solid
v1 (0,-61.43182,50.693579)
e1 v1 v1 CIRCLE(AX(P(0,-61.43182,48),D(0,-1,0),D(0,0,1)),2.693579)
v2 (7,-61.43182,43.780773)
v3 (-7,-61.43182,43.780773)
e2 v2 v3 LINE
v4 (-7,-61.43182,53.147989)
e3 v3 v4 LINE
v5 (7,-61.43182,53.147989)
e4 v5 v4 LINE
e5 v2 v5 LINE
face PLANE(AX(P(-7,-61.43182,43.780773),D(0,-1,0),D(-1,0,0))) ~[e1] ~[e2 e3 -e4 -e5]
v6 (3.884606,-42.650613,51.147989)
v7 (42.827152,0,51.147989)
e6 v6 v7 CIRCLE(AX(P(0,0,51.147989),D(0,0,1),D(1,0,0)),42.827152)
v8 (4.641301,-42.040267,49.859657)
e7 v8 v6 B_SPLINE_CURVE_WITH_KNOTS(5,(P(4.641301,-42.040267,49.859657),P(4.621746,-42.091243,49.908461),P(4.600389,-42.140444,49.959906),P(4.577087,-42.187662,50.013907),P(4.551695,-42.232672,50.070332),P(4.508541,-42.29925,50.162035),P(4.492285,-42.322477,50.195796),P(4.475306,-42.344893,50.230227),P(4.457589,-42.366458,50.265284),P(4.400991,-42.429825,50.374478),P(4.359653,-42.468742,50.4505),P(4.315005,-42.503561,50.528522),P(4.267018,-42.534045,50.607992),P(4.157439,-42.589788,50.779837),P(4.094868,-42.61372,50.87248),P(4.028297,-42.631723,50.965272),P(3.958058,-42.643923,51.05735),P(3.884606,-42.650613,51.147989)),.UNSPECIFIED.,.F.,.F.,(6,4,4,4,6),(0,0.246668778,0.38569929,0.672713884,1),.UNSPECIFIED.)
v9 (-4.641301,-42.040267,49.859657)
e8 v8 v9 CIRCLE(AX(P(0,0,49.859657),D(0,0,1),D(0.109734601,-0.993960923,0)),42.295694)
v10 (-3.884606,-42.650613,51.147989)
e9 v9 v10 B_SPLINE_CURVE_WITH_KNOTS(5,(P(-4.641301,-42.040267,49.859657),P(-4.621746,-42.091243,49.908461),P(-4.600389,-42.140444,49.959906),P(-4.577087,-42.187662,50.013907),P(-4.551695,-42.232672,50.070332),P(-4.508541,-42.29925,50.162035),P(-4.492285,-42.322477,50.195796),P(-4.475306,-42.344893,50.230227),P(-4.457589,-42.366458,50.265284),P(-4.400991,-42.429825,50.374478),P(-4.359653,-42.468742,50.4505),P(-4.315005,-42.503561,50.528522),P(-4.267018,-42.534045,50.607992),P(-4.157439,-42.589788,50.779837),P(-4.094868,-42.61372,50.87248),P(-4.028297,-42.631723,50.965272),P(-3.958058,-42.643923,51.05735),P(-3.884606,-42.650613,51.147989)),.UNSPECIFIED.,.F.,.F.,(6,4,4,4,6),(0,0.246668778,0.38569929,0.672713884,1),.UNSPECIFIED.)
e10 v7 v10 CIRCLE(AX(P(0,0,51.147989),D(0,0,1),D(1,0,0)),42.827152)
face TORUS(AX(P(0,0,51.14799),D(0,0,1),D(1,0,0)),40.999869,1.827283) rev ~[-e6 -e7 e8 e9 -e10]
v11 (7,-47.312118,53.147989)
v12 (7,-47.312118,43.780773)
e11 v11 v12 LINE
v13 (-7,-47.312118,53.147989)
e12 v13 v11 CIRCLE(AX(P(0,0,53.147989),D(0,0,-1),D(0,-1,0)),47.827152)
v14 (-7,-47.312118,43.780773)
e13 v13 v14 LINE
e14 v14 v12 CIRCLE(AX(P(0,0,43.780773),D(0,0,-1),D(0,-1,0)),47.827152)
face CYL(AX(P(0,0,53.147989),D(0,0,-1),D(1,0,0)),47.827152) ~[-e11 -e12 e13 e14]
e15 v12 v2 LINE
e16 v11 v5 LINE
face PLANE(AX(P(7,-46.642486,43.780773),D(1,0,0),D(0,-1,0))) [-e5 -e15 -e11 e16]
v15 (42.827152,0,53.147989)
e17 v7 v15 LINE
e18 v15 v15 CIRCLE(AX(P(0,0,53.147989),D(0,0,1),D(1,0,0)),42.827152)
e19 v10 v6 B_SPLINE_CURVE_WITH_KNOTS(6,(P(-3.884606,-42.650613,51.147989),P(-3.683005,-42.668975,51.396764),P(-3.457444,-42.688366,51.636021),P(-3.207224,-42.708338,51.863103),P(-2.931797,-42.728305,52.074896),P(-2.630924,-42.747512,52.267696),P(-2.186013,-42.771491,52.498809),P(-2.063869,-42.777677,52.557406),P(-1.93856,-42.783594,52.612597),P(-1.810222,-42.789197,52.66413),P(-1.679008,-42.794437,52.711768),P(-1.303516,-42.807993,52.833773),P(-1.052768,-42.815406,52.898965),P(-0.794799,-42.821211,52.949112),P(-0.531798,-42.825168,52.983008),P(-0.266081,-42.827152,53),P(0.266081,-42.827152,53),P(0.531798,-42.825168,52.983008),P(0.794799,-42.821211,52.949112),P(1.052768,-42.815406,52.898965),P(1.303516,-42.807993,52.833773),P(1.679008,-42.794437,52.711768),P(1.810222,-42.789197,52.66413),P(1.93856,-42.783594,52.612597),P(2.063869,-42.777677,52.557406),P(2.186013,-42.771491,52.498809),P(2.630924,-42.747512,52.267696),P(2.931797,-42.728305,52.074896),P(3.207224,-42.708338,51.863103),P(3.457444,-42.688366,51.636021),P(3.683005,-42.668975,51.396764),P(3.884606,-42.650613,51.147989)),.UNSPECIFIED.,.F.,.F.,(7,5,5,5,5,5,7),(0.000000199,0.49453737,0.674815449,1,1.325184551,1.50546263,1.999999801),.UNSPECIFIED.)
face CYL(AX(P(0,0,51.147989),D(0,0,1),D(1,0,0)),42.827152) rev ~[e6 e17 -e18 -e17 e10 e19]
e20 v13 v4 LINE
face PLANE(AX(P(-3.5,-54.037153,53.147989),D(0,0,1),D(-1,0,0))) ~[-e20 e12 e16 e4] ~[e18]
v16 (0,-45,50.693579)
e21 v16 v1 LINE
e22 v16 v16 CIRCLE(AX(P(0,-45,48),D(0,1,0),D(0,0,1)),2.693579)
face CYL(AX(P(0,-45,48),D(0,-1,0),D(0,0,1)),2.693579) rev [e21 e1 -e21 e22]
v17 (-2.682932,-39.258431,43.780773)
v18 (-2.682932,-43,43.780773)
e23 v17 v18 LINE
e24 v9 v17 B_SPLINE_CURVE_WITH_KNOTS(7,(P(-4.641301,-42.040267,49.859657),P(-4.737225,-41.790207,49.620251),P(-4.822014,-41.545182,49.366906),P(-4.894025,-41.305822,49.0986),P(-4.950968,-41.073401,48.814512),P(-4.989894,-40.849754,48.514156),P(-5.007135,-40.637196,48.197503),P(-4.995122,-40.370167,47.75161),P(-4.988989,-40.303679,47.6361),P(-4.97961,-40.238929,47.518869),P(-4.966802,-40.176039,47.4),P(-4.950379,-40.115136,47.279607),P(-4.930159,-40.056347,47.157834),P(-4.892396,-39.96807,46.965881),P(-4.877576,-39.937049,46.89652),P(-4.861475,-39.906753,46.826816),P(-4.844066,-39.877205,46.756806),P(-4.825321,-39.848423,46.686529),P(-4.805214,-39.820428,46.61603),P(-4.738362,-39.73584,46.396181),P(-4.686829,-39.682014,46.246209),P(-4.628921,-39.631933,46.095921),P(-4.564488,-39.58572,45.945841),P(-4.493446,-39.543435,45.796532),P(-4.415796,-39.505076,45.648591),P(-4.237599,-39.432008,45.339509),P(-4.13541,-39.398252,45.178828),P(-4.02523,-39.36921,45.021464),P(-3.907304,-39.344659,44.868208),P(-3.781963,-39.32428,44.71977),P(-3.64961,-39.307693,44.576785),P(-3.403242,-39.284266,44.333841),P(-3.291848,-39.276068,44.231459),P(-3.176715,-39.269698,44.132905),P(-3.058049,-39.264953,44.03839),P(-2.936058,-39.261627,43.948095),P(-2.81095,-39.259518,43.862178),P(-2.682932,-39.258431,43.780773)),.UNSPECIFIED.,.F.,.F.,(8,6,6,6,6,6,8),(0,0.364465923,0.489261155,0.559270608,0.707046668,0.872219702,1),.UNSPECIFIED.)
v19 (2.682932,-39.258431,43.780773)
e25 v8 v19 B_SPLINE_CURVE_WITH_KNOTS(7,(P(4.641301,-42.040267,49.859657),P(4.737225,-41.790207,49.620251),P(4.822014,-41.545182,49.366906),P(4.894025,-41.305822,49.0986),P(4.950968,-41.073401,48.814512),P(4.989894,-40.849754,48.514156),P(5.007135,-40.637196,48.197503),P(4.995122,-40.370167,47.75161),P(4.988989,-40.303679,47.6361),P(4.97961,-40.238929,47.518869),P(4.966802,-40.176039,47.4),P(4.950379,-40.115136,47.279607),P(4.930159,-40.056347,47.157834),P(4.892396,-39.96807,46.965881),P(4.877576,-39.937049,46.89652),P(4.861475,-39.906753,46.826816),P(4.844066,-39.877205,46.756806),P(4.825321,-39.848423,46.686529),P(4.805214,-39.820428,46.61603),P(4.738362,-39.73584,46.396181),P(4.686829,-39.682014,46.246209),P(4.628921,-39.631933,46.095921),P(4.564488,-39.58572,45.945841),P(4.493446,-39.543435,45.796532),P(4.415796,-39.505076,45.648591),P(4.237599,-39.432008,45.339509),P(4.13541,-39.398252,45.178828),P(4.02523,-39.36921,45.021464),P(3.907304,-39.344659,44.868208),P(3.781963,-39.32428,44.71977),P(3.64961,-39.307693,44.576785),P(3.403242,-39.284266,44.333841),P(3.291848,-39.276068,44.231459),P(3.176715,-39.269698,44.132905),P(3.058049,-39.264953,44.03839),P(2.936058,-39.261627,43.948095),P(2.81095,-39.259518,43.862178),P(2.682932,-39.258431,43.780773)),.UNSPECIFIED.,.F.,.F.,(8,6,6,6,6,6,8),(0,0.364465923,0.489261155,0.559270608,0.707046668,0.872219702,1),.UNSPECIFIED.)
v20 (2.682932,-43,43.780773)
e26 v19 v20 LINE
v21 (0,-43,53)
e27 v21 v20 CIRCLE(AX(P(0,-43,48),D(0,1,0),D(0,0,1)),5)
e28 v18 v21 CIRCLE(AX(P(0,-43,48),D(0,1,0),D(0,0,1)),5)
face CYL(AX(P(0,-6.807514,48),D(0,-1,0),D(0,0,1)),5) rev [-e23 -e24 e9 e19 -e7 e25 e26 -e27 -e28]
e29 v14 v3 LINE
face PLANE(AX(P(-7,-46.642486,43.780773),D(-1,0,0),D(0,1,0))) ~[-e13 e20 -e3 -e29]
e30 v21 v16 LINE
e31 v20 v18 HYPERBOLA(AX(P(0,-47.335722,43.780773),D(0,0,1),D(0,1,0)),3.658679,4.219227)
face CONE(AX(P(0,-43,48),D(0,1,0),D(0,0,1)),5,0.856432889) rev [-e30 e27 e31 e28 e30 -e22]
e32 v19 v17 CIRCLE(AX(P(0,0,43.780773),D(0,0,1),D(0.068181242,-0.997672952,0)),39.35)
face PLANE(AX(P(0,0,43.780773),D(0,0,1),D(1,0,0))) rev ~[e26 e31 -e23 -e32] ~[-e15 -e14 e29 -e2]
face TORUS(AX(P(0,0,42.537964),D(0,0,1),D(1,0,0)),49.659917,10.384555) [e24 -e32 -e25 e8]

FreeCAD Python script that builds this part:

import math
import FreeCAD as App
import Part
import Sketcher

V = App.Vector
Q = App.Units.Quantity


def add_polygon(sketch, points):
    """Adds a closed chain of lines whose ends are joined by coincident constraints."""
    first, n = sketch.GeometryCount, len(points)
    for a, b in zip(points, points[1:] + points[:1]):
        sketch.addGeometry(Part.LineSegment(App.Vector(*a, 0), App.Vector(*b, 0)), False)
    for i in range(n):
        sketch.addConstraint(Sketcher.Constraint("Coincident", first + i, 2, first + (i + 1) % n, 1))

doc = App.newDocument("Part")
body = doc.addObject("PartDesign::Body", "Body")

# Sketch on XZ plane
sketch1 = body.newObject("Sketcher::SketchObject", "Sketch")
sketch1.AttachmentSupport = (doc.getObject("XZ_Plane"), [""])
sketch1.MapMode = "FlatFace"
sketch1.addGeometry([
    Part.ArcOfCircle(Part.Circle(V(49.7, 42.5, 0), V(0, 0, 1), 10.4), math.radians(135), math.radians(173)),  # 0
    Part.LineSegment(V(39.4, 43.8, 0), V(47.8, 43.8, 0)),  # 1
    Part.LineSegment(V(47.8, 43.8, 0), V(47.8, 53.1, 0)),  # 2
    Part.LineSegment(V(47.8, 53.1, 0), V(42.8, 53.1, 0)),  # 3
    Part.LineSegment(V(42.8, 53.1, 0), V(42.8, 51.1, 0)),  # 4
    Part.ArcOfCircle(Part.Circle(V(41, 51.1, 0), V(0, 0, 1), 1.8), math.radians(-45), math.radians(0)),  # 5
], False)
sketch1.addConstraint([
    Sketcher.Constraint("Coincident", 0, 2, 1, 1),
    Sketcher.Constraint("Coincident", 1, 2, 2, 1),
    Sketcher.Constraint("Coincident", 2, 2, 3, 1),
    Sketcher.Constraint("Coincident", 3, 2, 4, 1),
    Sketcher.Constraint("Tangent", 4, 2, 5, 2),
    Sketcher.Constraint("Coincident", 5, 1, 0, 1),
    Sketcher.Constraint("Horizontal", 1),
    Sketcher.Constraint("Vertical", 2),
    Sketcher.Constraint("Horizontal", 3),
    Sketcher.Constraint("Vertical", 4),
    Sketcher.Constraint("DistanceX", 3, 2, 3, 1, Q("5 mm")),
    Sketcher.Constraint("DistanceY", 4, 2, 4, 1, Q("2 mm")),
    Sketcher.Constraint("DistanceX", -1, 1, 0, 2, Q("39.35 mm")),
    Sketcher.Constraint("Radius", 0, Q("10.384555 mm")),
    Sketcher.Constraint("Radius", 5, Q("1.827283 mm")),
    Sketcher.Constraint("DistanceX", 1, 1, 1, 2, Q("8.477152 mm")),
    Sketcher.Constraint("DistanceY", 2, 1, 2, 2, Q("9.367216 mm")),
    Sketcher.Constraint("DistanceY", -1, 1, 5, 3, Q("51.14799 mm")),
    Sketcher.Constraint("DistanceX", 5, 1, 4, 2, Q("0.531458 mm")),
])
revolution = body.newObject("PartDesign::Revolution", "Revolution")
revolution.Profile = sketch1
revolution.ReferenceAxis = (sketch1, ["V_Axis"])
revolution.Angle = 360

# Sketch on XY plane
sketch2 = body.newObject("Sketcher::SketchObject", "Sketch001")
sketch2.AttachmentSupport = (doc.getObject("XY_Plane"), [""])
sketch2.MapMode = "FlatFace"
sketch2.AttachmentOffset = App.Placement(V(0, 0, 43.780773), App.Rotation())
add_polygon(sketch2, [(7, -61), (7, -47), (0, -47), (0, -61)])  # lines 0-3
sketch2.addConstraint([
    Sketcher.Constraint("Vertical", 0),
    Sketcher.Constraint("Horizontal", 1),
    Sketcher.Constraint("Vertical", 2),
    Sketcher.Constraint("Horizontal", 3),
    Sketcher.Constraint("PointOnObject", 1, 2, -2),
    Sketcher.Constraint("DistanceX", 1, 2, 1, 1, Q("7 mm")),
    Sketcher.Constraint("DistanceY", 0, 1, 0, 2, Q("14.789333 mm")),
    Sketcher.Constraint("DistanceY", 2, 2, -1, 1, Q("61.43182 mm")),
])
pad1 = body.newObject("PartDesign::Pad", "Pad")
pad1.Profile = sketch2
pad1.Length = 9.367216
doc.recompute()

mirrored = body.newObject("PartDesign::Mirrored", "Mirrored")
mirrored.Originals = [pad1]
mirrored.MirrorPlane = (doc.getObject("YZ_Plane"), [""])
body.Tip = mirrored

# Sketch on YZ plane
sketch3 = body.newObject("Sketcher::SketchObject", "Sketch002")
sketch3.AttachmentSupport = (doc.getObject("YZ_Plane"), [""])
sketch3.MapMode = "FlatFace"
add_polygon(sketch3, [(-43, 53), (-45, 50.7), (-85.2, 50.7), (-85.4, 48), (-6.8, 48), (-6.8, 53)])  # lines 0-5
sketch3.addGeometry(Part.LineSegment(V(-85.4, 48, 0), V(-6.8, 48, 0)), True)  # axis
sketch3.addConstraint([
    Sketcher.Constraint("Horizontal", 1),
    Sketcher.Constraint("Horizontal", 3),
    Sketcher.Constraint("Vertical", 4),
    Sketcher.Constraint("Horizontal", 5),
    Sketcher.Constraint("Horizontal", 6),
    Sketcher.Constraint("Coincident", 6, 1, 2, 2),
    Sketcher.Constraint("Vertical", 4, 2, 6, 2),
    Sketcher.Constraint("DistanceY", 4, 1, 4, 2, Q("5 mm")),
    Sketcher.Constraint("DistanceX", 0, 2, -1, 1, Q("45 mm")),
    Sketcher.Constraint("DistanceY", -1, 1, 2, 2, Q("48 mm")),
    Sketcher.Constraint("DistanceX", 5, 2, -1, 1, Q("43 mm")),
    Sketcher.Constraint("Distance", 2, Q("2.7 mm")),
    Sketcher.Constraint("Angle", 0, Q("-130.93001 deg")),
    Sketcher.Constraint("DistanceX", 3, 1, 3, 2, Q("78.601358 mm")),
    Sketcher.Constraint("DistanceX", 1, 2, 1, 1, Q("40.222773 mm")),
])
groove = body.newObject("PartDesign::Groove", "Groove")
groove.Profile = sketch3
groove.ReferenceAxis = (sketch3, ["Axis0"])
groove.Angle = 360

doc.recompute()
